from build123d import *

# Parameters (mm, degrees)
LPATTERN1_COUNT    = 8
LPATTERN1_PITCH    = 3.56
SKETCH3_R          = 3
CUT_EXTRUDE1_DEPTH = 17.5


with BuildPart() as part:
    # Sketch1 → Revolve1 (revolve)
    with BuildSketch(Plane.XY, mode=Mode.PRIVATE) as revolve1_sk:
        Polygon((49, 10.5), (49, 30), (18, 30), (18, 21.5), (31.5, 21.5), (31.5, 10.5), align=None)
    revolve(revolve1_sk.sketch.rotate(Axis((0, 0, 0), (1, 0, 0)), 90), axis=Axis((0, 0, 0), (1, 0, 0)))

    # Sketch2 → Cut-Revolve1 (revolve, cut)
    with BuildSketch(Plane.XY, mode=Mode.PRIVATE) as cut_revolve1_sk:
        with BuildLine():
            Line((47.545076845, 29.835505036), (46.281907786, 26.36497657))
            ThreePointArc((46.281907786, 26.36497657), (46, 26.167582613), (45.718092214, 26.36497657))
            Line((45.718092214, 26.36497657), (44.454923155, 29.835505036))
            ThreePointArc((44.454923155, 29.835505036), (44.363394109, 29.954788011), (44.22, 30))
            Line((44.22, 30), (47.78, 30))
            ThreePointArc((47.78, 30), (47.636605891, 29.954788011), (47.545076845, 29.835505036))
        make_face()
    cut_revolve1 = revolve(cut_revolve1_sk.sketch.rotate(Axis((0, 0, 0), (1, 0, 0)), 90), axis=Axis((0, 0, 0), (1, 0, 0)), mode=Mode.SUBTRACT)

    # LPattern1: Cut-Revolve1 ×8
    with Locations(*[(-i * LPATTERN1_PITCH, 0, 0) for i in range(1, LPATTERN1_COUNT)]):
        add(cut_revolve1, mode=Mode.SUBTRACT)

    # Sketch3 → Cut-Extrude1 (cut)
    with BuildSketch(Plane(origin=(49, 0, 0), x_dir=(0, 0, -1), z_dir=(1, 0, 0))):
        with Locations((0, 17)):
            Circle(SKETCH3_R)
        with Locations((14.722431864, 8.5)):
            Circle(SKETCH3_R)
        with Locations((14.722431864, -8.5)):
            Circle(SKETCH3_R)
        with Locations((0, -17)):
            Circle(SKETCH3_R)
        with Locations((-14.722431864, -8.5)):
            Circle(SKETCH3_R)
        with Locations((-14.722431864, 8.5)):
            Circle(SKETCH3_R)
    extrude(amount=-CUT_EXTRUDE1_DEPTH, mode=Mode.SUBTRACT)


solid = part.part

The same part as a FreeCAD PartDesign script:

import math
import FreeCAD as App
import Part
import Sketcher

V = App.Vector
Q = App.Units.Quantity

doc = App.newDocument("Part")
body = doc.addObject("PartDesign::Body", "Body")

# Sketch on XY plane
sketch1 = doc.addObject("Sketcher::SketchObject", "Sketch")
body.addObject(sketch1)
sketch1.AttachmentSupport = (doc.XY_Plane, [""])
sketch1.MapMode = "FlatFace"
sketch1.addGeometry([
    Part.LineSegment(V(49, 10, 0), V(49, 30, 0)),  # 0
    Part.LineSegment(V(49, 30, 0), V(18, 30, 0)),  # 1
    Part.LineSegment(V(18, 30, 0), V(18, 22, 0)),  # 2
    Part.LineSegment(V(18, 22, 0), V(32, 22, 0)),  # 3
    Part.LineSegment(V(32, 22, 0), V(32, 10, 0)),  # 4
    Part.LineSegment(V(32, 10, 0), V(49, 10, 0)),  # 5
], False)
sketch1.addConstraint([
    Sketcher.Constraint("Coincident", 0, 2, 1, 1),
    Sketcher.Constraint("Coincident", 1, 2, 2, 1),
    Sketcher.Constraint("Coincident", 2, 2, 3, 1),
    Sketcher.Constraint("Coincident", 3, 2, 4, 1),
    Sketcher.Constraint("Coincident", 4, 2, 5, 1),
    Sketcher.Constraint("Coincident", 5, 2, 0, 1),
    Sketcher.Constraint("Vertical", 0),
    Sketcher.Constraint("Horizontal", 1),
    Sketcher.Constraint("Vertical", 2),
    Sketcher.Constraint("Horizontal", 3),
    Sketcher.Constraint("Vertical", 4),
    Sketcher.Constraint("Horizontal", 5),
    Sketcher.Constraint("DistanceX", 1, 2, 1, 1, 31.0),
    Sketcher.Constraint("DistanceY", 4, 2, 4, 1, 11.0),
    Sketcher.Constraint("DistanceX", 3, 1, 3, 2, 13.5),
    Sketcher.Constraint("DistanceY", 0, 1, 0, 2, 19.5),
    Sketcher.Constraint("DistanceX", -1, 1, 0, 2, 49.0),
    Sketcher.Constraint("DistanceY", -1, 1, 0, 2, 30.0),
])
revolution = doc.addObject("PartDesign::Revolution", "Revolution")
body.addObject(revolution)
revolution.Profile = sketch1
revolution.ReferenceAxis = (sketch1, ["H_Axis"])
revolution.Angle = 360

# Sketch on XY plane
sketch2 = doc.addObject("Sketcher::SketchObject", "Sketch001")
body.addObject(sketch2)
sketch2.AttachmentSupport = (doc.XY_Plane, [""])
sketch2.MapMode = "FlatFace"
sketch2.addGeometry([
    Part.LineSegment(V(46.28, 26.36, 0), V(47.55, 29.84, 0)),  # 0
    Part.ArcOfCircle(Part.Circle(V(47.78, 29.75, 0), V(0, 0, 1), 0.25), math.radians(90), math.radians(160)),  # 1
    Part.LineSegment(V(47.78, 30, 0), V(44.22, 30, 0)),  # 2
    Part.ArcOfCircle(Part.Circle(V(44.22, 29.75, 0), V(0, 0, 1), 0.25), math.radians(20), math.radians(90)),  # 3
    Part.LineSegment(V(44.45, 29.84, 0), V(45.72, 26.36, 0)),  # 4
    Part.ArcOfCircle(Part.Circle(V(46, 26.47, 0), V(0, 0, 1), 0.3), math.radians(-160), math.radians(-20)),  # 5
], False)
sketch2.addConstraint([
    Sketcher.Constraint("Tangent", 0, 2, 1, 2),
    Sketcher.Constraint("Tangent", 1, 1, 2, 1),
    Sketcher.Constraint("Tangent", 2, 2, 3, 2),
    Sketcher.Constraint("Tangent", 3, 1, 4, 1),
    Sketcher.Constraint("Tangent", 4, 2, 5, 1),
    Sketcher.Constraint("Tangent", 5, 2, 0, 1),
    Sketcher.Constraint("Horizontal", 2),
    Sketcher.Constraint("Equal", 1, 3),
    Sketcher.Constraint("Horizontal", 0, 2, 3, 1),
    Sketcher.Constraint("Radius", 5, 0.3),
    Sketcher.Constraint("Angle", 0, Q("70 deg")),
    Sketcher.Constraint("Radius", 1, 0.25),
    Sketcher.Constraint("DistanceX", -1, 1, 5, 3, 46.0),
    Sketcher.Constraint("DistanceY", -1, 1, 1, 1, 30.0),
    Sketcher.Constraint("DistanceX", 2, 2, 2, 1, 3.56),
])
groove = doc.addObject("PartDesign::Groove", "Groove")
body.addObject(groove)
groove.Profile = sketch2
groove.ReferenceAxis = (sketch2, ["H_Axis"])
groove.Angle = 360
doc.recompute()

linearpattern = doc.addObject("PartDesign::LinearPattern", "LinearPattern")
body.addObject(linearpattern)
linearpattern.Originals = [groove]
linearpattern.Direction = (doc.X_Axis, [""])
linearpattern.Mode = "offset"
linearpattern.Offset = 3.56
linearpattern.Occurrences = 8
linearpattern.Reversed = True
body.Tip = linearpattern

# Sketch on YZ plane
sketch3 = doc.addObject("Sketcher::SketchObject", "Sketch002")
body.addObject(sketch3)
sketch3.AttachmentSupport = (doc.YZ_Plane, [""])
sketch3.MapMode = "FlatFace"
sketch3.AttachmentOffset = App.Placement(V(0, 0, 49), App.Rotation())
sketch3.addGeometry([
    Part.Circle(V(17, 0, 0), V(0, 0, 1), 3),  # 0
    Part.Circle(V(8.5, -14.7, 0), V(0, 0, 1), 3),  # 1
    Part.Circle(V(-8.5, -14.7, 0), V(0, 0, 1), 3),  # 2
    Part.Circle(V(-17, 0, 0), V(0, 0, 1), 3),  # 3
    Part.Circle(V(-8.5, 14.7, 0), V(0, 0, 1), 3),  # 4
    Part.Circle(V(8.5, 14.7, 0), V(0, 0, 1), 3),  # 5
], False)
sketch3.addConstraint([
    Sketcher.Constraint("Equal", 0, 1),
    Sketcher.Constraint("Equal", 1, 2),
    Sketcher.Constraint("Equal", 2, 3),
    Sketcher.Constraint("Equal", 3, 4),
    Sketcher.Constraint("Equal", 4, 5),
    Sketcher.Constraint("Symmetric", 0, 3, 3, 3, -1, 1),
    Sketcher.Constraint("Symmetric", 1, 3, 4, 3, -1, 1),
    Sketcher.Constraint("Symmetric", 2, 3, 5, 3, -1, 1),
    Sketcher.Constraint("Symmetric", 1, 3, 2, 3, -2),
    Sketcher.Constraint("PointOnObject", 0, 3, -1),
    Sketcher.Constraint("Diameter", 0, 6.0),
    Sketcher.Constraint("DistanceX", -1, 1, 0, 3, 17.0),
    Sketcher.Constraint("DistanceX", 2, 3, 1, 3, 17.0),
    Sketcher.Constraint("DistanceY", 1, 3, -1, 1, 14.722432),
])
pocket1 = doc.addObject("PartDesign::Pocket", "Pocket")
body.addObject(pocket1)
pocket1.Profile = sketch3
pocket1.Length = 17.5

doc.recompute()
